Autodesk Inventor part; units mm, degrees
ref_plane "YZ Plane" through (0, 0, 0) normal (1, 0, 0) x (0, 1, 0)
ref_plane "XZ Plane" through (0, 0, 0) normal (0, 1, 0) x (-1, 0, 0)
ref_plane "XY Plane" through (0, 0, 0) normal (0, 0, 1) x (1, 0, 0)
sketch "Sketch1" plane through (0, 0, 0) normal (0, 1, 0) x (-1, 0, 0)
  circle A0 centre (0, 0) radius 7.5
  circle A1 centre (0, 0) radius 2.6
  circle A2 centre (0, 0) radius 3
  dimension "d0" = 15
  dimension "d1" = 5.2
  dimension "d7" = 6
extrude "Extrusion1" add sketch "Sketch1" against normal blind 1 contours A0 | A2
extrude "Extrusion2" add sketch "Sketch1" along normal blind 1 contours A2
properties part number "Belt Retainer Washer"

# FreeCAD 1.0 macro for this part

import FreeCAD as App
import Part
import Sketcher
Q = App.Units.Quantity

doc = App.newDocument("Part")
body = doc.addObject("PartDesign::Body", "Body")

sketch1 = body.newObject("Sketcher::SketchObject", "Sketch")
sketch1.AttachmentSupport = (doc.getObject("XZ_Plane"), [""])
sketch1.MapMode = "FlatFace"
sketch1.addGeometry([
    Part.Circle(App.Vector(0, 0, 0), App.Vector(0, 0, 1), 7.5),
    Part.Circle(App.Vector(0, 0, 0), App.Vector(0, 0, 1), 2.6),
], False)
sketch1.addConstraint([
    Sketcher.Constraint("Coincident", 0, 3, -1, 1),
    Sketcher.Constraint("Coincident", 1, 3, -1, 1),
    Sketcher.Constraint("Diameter", 0, Q("15 mm")),
    Sketcher.Constraint("Diameter", 1, Q("5.2 mm")),
])
pad1 = body.newObject("PartDesign::Pad", "Pad")
pad1.Profile = sketch1
pad1.Length = 1

sketch2 = body.newObject("Sketcher::SketchObject", "Sketch001")
sketch2.AttachmentSupport = (doc.getObject("XZ_Plane"), [""])
sketch2.MapMode = "FlatFace"
sketch2.addGeometry([
    Part.Circle(App.Vector(0, 0, 0), App.Vector(0, 0, 1), 3),
    Part.Circle(App.Vector(0, 0, 0), App.Vector(0, 0, 1), 2.6),
], False)
sketch2.addConstraint([
    Sketcher.Constraint("Coincident", 0, 3, -1, 1),
    Sketcher.Constraint("Coincident", 1, 3, -1, 1),
    Sketcher.Constraint("Diameter", 0, Q("6 mm")),
    Sketcher.Constraint("Diameter", 1, Q("5.2 mm")),
])
pad2 = body.newObject("PartDesign::Pad", "Pad001")
pad2.Profile = sketch2
pad2.Length = 1
pad2.Reversed = True

doc.recompute()
